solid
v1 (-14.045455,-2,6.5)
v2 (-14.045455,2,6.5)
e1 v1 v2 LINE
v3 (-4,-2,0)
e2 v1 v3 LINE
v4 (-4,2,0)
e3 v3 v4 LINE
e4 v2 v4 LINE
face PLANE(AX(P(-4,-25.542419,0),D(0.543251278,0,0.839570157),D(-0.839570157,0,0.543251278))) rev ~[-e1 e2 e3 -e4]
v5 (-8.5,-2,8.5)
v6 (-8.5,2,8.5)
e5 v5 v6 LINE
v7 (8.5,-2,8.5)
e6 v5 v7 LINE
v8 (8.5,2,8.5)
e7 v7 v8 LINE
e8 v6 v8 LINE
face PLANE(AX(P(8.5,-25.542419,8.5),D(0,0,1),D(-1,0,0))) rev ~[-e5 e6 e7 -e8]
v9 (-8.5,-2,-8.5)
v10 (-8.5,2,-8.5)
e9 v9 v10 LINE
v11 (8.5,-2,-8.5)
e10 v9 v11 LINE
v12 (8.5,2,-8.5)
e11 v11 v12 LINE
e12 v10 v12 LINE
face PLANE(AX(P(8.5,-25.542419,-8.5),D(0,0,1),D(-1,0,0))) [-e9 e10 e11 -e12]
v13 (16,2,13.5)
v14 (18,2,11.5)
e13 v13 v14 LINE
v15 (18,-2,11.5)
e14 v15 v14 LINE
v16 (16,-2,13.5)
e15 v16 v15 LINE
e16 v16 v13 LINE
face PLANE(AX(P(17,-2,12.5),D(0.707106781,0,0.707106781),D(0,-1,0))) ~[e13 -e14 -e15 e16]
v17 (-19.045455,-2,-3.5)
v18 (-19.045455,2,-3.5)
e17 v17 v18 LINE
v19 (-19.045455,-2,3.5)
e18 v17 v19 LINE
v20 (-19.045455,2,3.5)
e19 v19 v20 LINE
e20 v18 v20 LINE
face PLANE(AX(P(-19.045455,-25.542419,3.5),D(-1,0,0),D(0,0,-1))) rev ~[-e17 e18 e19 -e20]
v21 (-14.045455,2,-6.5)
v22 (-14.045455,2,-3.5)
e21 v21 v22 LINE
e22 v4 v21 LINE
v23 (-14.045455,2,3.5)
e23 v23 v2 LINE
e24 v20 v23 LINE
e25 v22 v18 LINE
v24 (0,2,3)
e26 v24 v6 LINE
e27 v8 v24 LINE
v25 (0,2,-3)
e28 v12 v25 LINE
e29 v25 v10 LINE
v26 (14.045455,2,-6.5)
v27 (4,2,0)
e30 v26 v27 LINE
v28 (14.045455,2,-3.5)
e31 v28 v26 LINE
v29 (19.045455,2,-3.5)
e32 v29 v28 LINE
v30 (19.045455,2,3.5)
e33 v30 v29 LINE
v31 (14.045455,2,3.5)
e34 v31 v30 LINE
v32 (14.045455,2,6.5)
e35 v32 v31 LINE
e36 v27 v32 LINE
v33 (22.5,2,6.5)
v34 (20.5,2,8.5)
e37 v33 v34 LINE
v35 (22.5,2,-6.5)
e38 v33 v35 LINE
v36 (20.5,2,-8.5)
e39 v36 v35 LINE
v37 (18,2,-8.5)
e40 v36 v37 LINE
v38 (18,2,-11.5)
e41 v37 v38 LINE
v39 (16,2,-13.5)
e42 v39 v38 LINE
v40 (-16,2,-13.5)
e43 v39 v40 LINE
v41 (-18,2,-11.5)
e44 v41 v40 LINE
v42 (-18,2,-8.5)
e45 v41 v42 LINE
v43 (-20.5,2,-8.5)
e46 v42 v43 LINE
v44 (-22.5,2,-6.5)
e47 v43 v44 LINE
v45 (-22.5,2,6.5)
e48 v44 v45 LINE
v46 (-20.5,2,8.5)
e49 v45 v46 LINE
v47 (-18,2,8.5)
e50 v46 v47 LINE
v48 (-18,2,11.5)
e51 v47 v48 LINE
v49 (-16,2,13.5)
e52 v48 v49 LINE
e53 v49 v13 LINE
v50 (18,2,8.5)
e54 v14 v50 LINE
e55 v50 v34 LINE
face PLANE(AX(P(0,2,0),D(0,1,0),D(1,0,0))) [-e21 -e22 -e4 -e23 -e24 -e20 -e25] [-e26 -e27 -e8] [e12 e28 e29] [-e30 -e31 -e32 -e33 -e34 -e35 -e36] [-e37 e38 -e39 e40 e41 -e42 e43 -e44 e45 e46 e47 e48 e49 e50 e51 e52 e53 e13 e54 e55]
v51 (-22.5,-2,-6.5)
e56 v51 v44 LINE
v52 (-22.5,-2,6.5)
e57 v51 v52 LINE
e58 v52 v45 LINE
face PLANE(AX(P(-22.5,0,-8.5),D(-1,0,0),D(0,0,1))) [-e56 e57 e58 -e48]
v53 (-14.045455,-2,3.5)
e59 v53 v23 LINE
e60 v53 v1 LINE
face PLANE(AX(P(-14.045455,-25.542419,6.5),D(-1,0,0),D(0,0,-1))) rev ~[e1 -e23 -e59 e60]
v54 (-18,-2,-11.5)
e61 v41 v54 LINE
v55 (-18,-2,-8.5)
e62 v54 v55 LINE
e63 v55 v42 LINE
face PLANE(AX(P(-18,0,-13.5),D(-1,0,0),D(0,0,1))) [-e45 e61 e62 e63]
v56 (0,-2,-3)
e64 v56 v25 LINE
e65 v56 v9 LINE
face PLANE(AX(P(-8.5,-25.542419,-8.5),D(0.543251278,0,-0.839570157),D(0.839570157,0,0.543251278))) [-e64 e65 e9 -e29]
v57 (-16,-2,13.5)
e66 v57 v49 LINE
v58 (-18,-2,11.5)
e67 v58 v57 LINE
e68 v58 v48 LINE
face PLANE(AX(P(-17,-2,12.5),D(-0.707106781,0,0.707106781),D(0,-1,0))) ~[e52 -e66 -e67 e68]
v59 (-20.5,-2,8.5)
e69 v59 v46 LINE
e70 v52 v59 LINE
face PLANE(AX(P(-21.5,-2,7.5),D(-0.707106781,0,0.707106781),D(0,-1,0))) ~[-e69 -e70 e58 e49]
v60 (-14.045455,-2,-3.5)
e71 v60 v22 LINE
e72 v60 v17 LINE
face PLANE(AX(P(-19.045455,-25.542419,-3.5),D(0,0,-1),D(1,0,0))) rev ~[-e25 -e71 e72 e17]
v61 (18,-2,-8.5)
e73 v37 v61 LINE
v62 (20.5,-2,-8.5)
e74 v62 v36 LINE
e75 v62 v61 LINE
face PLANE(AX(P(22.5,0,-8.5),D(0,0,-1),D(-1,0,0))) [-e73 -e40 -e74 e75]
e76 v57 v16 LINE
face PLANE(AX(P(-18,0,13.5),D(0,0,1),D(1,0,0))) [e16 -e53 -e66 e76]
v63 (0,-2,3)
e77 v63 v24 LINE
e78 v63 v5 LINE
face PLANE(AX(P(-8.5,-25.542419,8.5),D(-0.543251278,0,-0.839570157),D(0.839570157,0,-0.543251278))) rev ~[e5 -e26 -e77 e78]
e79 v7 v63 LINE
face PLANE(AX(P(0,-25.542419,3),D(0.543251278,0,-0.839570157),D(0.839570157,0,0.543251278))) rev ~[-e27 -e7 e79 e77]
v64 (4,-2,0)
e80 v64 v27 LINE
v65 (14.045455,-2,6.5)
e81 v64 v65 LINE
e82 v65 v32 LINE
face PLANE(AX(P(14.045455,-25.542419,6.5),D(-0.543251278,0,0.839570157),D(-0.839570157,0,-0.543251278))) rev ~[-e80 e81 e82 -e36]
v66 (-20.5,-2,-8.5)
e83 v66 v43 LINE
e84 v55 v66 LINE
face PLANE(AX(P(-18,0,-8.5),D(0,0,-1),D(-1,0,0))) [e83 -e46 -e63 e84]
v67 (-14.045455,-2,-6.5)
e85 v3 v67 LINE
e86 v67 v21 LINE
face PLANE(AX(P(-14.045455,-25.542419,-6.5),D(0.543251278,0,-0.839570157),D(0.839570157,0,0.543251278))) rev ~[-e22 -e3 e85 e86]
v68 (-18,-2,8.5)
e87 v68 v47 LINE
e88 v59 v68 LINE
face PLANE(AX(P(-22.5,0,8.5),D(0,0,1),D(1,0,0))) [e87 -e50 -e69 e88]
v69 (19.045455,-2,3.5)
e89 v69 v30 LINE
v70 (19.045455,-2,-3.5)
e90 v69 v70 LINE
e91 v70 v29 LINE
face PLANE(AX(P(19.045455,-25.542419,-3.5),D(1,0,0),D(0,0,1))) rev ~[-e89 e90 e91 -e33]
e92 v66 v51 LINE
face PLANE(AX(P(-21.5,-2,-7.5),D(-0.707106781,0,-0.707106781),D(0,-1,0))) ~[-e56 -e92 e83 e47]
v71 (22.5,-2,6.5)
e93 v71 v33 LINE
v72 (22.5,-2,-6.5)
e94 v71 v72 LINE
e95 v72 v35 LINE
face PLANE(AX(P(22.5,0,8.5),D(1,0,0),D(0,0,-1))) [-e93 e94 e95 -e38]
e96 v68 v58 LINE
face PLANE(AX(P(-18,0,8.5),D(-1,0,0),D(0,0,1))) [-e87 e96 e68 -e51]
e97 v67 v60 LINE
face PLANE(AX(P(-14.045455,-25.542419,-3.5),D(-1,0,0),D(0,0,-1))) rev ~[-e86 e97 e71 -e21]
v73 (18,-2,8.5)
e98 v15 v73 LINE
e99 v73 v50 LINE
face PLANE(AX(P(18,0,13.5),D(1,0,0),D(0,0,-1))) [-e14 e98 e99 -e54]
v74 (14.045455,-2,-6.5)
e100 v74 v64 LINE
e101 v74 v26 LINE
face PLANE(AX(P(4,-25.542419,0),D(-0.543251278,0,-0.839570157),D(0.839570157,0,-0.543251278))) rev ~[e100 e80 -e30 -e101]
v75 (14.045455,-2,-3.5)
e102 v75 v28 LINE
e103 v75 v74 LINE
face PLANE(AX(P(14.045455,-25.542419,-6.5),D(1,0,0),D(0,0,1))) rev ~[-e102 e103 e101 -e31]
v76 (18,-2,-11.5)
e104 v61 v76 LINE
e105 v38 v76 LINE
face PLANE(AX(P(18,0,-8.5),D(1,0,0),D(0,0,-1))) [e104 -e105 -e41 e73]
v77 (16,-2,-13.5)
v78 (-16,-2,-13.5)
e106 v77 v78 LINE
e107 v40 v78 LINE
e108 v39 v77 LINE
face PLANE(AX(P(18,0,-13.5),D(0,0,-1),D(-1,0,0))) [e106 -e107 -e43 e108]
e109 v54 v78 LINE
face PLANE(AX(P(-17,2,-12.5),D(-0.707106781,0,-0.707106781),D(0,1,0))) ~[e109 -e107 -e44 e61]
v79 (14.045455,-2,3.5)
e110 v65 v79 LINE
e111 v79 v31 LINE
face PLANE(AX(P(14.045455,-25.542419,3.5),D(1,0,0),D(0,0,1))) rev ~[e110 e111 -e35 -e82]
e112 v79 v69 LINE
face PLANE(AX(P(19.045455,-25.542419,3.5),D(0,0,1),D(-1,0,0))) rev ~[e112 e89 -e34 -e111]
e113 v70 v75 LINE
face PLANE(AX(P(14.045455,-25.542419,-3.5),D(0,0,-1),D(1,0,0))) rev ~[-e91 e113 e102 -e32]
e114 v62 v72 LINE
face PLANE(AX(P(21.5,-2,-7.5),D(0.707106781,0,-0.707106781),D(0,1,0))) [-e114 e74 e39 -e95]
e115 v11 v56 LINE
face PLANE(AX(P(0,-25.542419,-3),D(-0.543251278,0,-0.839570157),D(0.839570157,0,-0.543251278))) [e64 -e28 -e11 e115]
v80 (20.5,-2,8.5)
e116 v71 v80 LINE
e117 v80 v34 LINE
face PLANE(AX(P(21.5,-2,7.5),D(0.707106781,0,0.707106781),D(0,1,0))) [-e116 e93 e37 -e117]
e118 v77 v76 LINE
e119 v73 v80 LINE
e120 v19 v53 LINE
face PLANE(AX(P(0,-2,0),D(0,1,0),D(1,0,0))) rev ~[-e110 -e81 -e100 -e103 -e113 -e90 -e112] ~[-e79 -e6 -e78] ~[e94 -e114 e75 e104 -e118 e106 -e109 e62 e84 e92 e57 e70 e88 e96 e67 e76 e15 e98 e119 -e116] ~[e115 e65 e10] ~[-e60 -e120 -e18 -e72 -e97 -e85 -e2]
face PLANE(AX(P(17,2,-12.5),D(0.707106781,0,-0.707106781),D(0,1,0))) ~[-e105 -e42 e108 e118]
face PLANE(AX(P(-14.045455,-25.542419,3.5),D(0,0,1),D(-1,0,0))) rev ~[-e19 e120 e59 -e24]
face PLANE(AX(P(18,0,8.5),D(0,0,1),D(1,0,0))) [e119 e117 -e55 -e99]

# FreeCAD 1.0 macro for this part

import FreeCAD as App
import Part
import Sketcher
from FreeCAD import Vector
Q = App.Units.Quantity


def edges_at(feature, points):
    """Names of the edges that pass closest to the given points."""
    edges = feature.Shape.Edges
    near = lambda p: min(range(len(edges)), key=lambda i: edges[i].distToShape(Part.Vertex(*p))[0])
    return sorted({f"Edge{near(p) + 1}" for p in points})


def add_polygon(sketch, points):
    """Adds a closed chain of lines whose ends are joined by coincident constraints."""
    first, n = sketch.GeometryCount, len(points)
    for a, b in zip(points, points[1:] + points[:1]):
        sketch.addGeometry(Part.LineSegment(App.Vector(*a, 0), App.Vector(*b, 0)), False)
    for i in range(n):
        sketch.addConstraint(Sketcher.Constraint("Coincident", first + i, 2, first + (i + 1) % n, 1))

doc = App.newDocument("Part")
params = doc.addObject("Spreadsheet::Sheet", "Params")
for row, (alias, value) in enumerate([
    ("sketch1_width", "36 mm"),
    ("sketch1_height", "5 mm"),
    ("sketch1_height2", "17 mm"),
    ("sketch1_width2", "4.5 mm"),
    ("pad1_length", "4 mm"),
    ("sketch2_width", "17 mm"),
    ("sketch2_width2", "5 mm"),
    ("sketch2_height", "3 mm"),
    ("sketch2_height2", "7 mm"),
    ("chamfer_size", "2 mm"),
], start=1):
    params.set(f"A{row}", alias)
    params.set(f"B{row}", "=" + value)
    params.setAlias(f"B{row}", alias)

body = doc.addObject("PartDesign::Body", "Body")

sketch1 = doc.addObject("Sketcher::SketchObject", "Sketch")
body.addObject(sketch1)
sketch1.AttachmentSupport = (doc.XZ_Plane, [""])
sketch1.MapMode = "FlatFace"
add_polygon(sketch1, [(-18, -13.5), (-18, -8.5), (-22.5, -8.5), (-22.5, 8.5), (-18, 8.5), (-18, 13.5), (18, 13.5), (18, 8.5), (22.5, 8.5), (22.5, -8.5), (18, -8.5), (18, -13.5)])
sketch1.addConstraint([
    Sketcher.Constraint("Vertical", 0),
    Sketcher.Constraint("Horizontal", 1),
    Sketcher.Constraint("Vertical", 2),
    Sketcher.Constraint("Horizontal", 3),
    Sketcher.Constraint("Vertical", 4),
    Sketcher.Constraint("Horizontal", 5),
    Sketcher.Constraint("Vertical", 6),
    Sketcher.Constraint("Horizontal", 7),
    Sketcher.Constraint("Vertical", 8),
    Sketcher.Constraint("Horizontal", 9),
    Sketcher.Constraint("Vertical", 10),
    Sketcher.Constraint("Horizontal", 11),
    Sketcher.Constraint("Symmetric", 0, 2, 6, 2, -1, 1),
    Sketcher.Constraint("Symmetric", 2, 2, 8, 2, -1, 1),
    Sketcher.Constraint("Symmetric", 4, 2, 10, 2, -1, 1),
    Sketcher.Constraint("Symmetric", 3, 2, 6, 2, -2),
    Sketcher.Constraint("DistanceX", 5, 1, 5, 2, Q("36 mm")),
    Sketcher.Constraint("DistanceY", 0, 1, 0, 2, Q("5 mm")),
    Sketcher.Constraint("DistanceY", 2, 1, 2, 2, Q("17 mm")),
    Sketcher.Constraint("DistanceX", 1, 2, 1, 1, Q("4.5 mm")),
])
sketch1.setExpression("Constraints[28]", "Params.sketch1_width")
sketch1.setExpression("Constraints[29]", "Params.sketch1_height")
sketch1.setExpression("Constraints[30]", "Params.sketch1_height2")
sketch1.setExpression("Constraints[31]", "Params.sketch1_width2")
pad1 = doc.addObject("PartDesign::Pad", "Pad")
body.addObject(pad1)
pad1.Profile = sketch1
pad1.setExpression("Length", "Params.pad1_length")
pad1.Midplane = True

sketch2 = doc.addObject("Sketcher::SketchObject", "Sketch001")
body.addObject(sketch2)
sketch2.AttachmentSupport = (doc.XZ_Plane, [""])
sketch2.MapMode = "FlatFace"
sketch2.AttachmentOffset = App.Placement(Vector(0, 0, -2), App.Rotation())
add_polygon(sketch2, [(0, -3), (8.5, -8.5), (-8.5, -8.5)])
add_polygon(sketch2, [(14, -6.5), (4, 0), (14, 6.5), (14, 3.5), (19, 3.5), (19, -3.5), (14, -3.5)])
add_polygon(sketch2, [(-8.5, 8.5), (8.5, 8.5), (0, 3)])
add_polygon(sketch2, [(-14, 6.5), (-4, 0), (-14, -6.5), (-14, -3.5), (-19, -3.5), (-19, 3.5), (-14, 3.5)])
sketch2.addConstraint([
    Sketcher.Constraint("Horizontal", 1),
    Sketcher.Constraint("Vertical", 5),
    Sketcher.Constraint("Horizontal", 6),
    Sketcher.Constraint("Vertical", 7),
    Sketcher.Constraint("Horizontal", 8),
    Sketcher.Constraint("Vertical", 9),
    Sketcher.Constraint("Horizontal", 10),
    Sketcher.Constraint("Vertical", 15),
    Sketcher.Constraint("Horizontal", 16),
    Sketcher.Constraint("Vertical", 17),
    Sketcher.Constraint("Horizontal", 18),
    Sketcher.Constraint("Vertical", 19),
    Sketcher.Constraint("Symmetric", 1, 2, 10, 2, -1, 1),
    Sketcher.Constraint("Symmetric", 2, 2, 11, 2, -1, 1),
    Sketcher.Constraint("Symmetric", 3, 2, 13, 2, -1, 1),
    Sketcher.Constraint("Symmetric", 4, 2, 14, 2, -1, 1),
    Sketcher.Constraint("Symmetric", 6, 2, 16, 2, -1, 1),
    Sketcher.Constraint("Symmetric", 8, 2, 18, 2, -1, 1),
    Sketcher.Constraint("Symmetric", 9, 2, 14, 2, -2),
    Sketcher.Constraint("PointOnObject", 2, 2, -2),
    Sketcher.Constraint("PointOnObject", 3, 2, -1),
    Sketcher.Constraint("Parallel", 0, 3),
    Sketcher.Constraint("Parallel", 2, 4),
    Sketcher.Constraint("Parallel", 3, 12),
    Sketcher.Constraint("Parallel", 12, 13),
    Sketcher.Constraint("Horizontal", 8, 2, 15, 2),
    Sketcher.Constraint("DistanceX", 1, 2, 1, 1, Q("17 mm")),
    Sketcher.Constraint("DistanceX", 6, 1, 6, 2, Q("5 mm")),
    Sketcher.Constraint("DistanceY", 5, 2, 5, 1, Q("3 mm")),
    Sketcher.Constraint("DistanceY", 7, 2, 7, 1, Q("7 mm")),
    Sketcher.Constraint("DistanceY", 2, 2, -1, 1, Q("3 mm")),
    Sketcher.Constraint("DistanceX", -1, 1, 3, 2, Q("4 mm")),
    Sketcher.Constraint("DistanceY", 0, 2, 4, 2, Q("15 mm")),
])
sketch2.setExpression("Constraints[46]", "Params.sketch2_width")
sketch2.setExpression("Constraints[47]", "Params.sketch2_width2")
sketch2.setExpression("Constraints[48]", "Params.sketch2_height")
sketch2.setExpression("Constraints[49]", "Params.sketch2_height2")
pocket1 = doc.addObject("PartDesign::Pocket", "Pocket")
body.addObject(pocket1)
pocket1.Profile = sketch2
pocket1.Type = "ThroughAll"
pocket1.Midplane = True
doc.recompute()

chamfer = doc.addObject("PartDesign::Chamfer", "Chamfer")
body.addObject(chamfer)
chamfer.Base = (pocket1, edges_at(pocket1, [
    (22.5, 0, -8.5),
    (22.5, 0, 8.5),
    (18, 0, 13.5),
    (-18, 0, 13.5),
    (-22.5, 0, 8.5),
    (-22.5, 0, -8.5),
    (-18, 0, -13.5),
    (18, 0, -13.5),
]))
chamfer.setExpression("Size", "Params.chamfer_size")

doc.recompute()
